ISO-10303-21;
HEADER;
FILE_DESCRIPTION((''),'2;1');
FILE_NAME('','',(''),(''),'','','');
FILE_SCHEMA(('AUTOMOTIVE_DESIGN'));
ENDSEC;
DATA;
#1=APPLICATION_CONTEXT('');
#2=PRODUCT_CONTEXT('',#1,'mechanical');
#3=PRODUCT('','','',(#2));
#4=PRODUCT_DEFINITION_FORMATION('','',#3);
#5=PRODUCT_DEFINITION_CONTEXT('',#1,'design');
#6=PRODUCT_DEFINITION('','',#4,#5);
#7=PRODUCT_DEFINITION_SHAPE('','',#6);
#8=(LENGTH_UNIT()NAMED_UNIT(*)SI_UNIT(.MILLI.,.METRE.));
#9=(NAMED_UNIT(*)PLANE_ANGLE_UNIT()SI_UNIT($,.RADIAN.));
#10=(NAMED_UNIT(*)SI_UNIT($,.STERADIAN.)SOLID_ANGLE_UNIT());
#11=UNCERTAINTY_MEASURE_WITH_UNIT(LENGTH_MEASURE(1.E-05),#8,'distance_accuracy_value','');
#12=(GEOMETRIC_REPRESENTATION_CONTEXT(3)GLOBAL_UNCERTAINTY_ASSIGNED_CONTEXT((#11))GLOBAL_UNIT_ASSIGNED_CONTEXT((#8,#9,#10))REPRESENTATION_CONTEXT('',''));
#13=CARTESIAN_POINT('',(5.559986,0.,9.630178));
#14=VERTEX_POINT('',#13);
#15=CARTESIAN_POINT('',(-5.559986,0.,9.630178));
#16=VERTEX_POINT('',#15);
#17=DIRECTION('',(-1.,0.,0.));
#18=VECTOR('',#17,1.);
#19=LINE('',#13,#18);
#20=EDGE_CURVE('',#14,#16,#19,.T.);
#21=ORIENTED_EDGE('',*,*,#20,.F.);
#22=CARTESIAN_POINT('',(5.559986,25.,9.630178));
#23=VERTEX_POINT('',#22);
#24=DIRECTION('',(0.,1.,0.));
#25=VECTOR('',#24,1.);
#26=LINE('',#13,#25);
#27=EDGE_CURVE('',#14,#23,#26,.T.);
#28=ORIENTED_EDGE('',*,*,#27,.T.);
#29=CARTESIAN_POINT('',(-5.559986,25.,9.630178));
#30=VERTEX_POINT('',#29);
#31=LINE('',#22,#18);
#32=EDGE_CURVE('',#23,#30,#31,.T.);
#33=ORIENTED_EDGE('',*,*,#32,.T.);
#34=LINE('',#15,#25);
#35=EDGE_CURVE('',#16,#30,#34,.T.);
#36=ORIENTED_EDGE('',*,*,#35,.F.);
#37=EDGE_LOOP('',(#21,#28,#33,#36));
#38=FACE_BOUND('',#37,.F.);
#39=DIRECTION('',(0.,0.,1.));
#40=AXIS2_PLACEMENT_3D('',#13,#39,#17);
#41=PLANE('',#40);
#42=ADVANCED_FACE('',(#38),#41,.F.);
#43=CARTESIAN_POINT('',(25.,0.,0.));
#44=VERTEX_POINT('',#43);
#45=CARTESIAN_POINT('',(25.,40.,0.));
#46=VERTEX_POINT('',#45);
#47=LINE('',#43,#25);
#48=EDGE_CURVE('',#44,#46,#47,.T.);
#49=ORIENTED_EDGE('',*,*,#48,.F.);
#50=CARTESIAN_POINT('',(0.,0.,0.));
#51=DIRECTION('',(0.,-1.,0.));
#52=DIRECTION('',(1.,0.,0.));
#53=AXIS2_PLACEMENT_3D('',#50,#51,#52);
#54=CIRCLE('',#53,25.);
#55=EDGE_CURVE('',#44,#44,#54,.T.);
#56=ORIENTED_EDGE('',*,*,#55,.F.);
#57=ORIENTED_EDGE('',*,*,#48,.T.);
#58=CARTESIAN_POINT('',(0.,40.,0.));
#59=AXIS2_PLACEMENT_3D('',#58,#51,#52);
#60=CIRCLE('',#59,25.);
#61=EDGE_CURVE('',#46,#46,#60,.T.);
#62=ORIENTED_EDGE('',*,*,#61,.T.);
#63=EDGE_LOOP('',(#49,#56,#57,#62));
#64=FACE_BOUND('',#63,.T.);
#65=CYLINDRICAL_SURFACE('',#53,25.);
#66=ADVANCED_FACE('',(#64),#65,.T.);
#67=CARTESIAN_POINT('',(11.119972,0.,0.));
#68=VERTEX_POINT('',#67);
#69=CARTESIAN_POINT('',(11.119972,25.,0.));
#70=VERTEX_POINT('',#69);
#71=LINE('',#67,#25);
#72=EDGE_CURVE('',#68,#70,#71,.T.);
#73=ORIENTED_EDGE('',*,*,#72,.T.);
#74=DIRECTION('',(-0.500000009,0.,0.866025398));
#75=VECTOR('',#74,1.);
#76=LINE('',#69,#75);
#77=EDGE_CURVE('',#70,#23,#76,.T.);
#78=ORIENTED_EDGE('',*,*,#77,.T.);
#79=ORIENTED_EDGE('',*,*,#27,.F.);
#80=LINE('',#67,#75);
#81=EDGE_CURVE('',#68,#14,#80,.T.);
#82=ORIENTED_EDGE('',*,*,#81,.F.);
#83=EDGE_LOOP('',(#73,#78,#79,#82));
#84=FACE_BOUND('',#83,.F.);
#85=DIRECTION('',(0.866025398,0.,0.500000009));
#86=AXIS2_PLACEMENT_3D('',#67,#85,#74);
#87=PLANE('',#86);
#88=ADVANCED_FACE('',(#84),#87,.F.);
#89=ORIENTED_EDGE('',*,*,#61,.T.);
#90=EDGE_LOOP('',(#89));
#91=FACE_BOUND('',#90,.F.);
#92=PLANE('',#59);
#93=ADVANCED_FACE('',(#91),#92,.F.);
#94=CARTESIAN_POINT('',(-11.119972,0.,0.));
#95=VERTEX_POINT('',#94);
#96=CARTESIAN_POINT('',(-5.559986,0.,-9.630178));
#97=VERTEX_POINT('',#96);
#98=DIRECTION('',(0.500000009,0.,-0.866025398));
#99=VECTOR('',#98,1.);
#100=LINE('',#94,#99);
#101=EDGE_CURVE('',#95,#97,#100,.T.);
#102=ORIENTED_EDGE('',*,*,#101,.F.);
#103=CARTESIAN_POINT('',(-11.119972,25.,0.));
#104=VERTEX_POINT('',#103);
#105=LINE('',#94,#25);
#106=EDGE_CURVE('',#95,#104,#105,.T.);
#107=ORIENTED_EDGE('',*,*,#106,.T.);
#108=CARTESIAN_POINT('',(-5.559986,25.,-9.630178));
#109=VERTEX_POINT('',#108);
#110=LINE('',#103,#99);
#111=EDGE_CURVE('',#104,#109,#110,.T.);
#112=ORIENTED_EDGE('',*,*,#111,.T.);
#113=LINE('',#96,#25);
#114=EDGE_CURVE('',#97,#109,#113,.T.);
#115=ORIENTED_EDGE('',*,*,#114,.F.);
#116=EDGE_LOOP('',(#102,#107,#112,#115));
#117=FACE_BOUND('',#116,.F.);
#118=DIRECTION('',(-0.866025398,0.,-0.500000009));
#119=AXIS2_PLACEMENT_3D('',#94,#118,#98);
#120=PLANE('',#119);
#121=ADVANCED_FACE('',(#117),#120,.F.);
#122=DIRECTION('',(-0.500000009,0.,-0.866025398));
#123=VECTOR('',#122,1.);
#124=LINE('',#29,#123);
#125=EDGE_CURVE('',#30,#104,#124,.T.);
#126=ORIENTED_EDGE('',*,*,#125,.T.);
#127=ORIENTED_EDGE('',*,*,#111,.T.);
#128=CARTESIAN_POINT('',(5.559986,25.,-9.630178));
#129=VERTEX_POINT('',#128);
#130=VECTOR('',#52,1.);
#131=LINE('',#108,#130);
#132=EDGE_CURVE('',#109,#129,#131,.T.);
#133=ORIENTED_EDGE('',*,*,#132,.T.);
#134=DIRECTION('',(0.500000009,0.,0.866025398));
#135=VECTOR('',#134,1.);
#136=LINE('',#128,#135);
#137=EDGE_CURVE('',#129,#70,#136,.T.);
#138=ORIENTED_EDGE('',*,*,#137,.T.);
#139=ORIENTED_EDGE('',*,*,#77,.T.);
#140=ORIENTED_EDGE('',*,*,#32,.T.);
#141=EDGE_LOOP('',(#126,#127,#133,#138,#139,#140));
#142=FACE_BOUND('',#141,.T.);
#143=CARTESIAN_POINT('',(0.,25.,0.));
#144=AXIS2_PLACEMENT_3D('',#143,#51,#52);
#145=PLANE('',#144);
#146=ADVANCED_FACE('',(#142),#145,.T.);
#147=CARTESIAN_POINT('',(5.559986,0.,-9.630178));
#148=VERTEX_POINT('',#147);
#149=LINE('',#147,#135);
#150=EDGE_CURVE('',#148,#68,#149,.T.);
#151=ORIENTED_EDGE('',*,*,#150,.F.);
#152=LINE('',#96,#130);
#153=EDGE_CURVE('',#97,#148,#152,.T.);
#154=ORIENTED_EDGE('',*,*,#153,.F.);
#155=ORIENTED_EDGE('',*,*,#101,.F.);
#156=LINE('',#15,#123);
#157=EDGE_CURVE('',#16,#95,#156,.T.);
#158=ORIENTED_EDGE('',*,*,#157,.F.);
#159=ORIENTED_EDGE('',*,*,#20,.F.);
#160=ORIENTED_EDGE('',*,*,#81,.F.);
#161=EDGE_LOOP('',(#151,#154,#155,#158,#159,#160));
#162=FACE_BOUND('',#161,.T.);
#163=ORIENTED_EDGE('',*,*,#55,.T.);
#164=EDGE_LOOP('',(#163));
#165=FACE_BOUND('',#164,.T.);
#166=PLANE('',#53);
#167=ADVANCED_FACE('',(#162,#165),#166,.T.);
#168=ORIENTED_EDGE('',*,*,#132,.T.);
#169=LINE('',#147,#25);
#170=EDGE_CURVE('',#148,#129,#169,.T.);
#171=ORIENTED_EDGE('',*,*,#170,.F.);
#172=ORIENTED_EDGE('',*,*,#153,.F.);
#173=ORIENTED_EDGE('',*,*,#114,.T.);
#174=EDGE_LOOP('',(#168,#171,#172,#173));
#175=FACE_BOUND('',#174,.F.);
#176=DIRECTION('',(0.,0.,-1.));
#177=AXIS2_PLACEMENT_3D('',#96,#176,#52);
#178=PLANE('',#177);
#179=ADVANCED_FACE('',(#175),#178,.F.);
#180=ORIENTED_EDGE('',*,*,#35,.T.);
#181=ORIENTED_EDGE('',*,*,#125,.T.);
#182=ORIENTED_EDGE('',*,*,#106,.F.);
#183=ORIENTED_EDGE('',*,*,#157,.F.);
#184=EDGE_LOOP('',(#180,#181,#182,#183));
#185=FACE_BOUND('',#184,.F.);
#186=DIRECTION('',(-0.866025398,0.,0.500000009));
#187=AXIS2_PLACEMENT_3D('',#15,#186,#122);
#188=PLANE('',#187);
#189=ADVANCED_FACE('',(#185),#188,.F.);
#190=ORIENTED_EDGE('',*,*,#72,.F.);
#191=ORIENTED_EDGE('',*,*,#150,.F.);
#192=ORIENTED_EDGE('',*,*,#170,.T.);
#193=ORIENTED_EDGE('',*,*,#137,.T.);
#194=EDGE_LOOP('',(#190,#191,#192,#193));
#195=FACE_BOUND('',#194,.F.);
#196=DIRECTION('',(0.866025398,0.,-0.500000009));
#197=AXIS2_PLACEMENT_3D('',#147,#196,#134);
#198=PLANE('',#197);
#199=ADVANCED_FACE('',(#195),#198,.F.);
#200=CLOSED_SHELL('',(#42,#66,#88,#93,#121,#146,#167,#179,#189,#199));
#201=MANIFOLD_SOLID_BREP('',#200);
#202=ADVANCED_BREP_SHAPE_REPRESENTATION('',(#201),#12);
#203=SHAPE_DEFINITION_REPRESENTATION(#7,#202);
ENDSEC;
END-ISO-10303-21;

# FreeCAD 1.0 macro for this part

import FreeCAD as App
import Part
import Sketcher
Q = App.Units.Quantity


def add_polygon(sketch, points):
    """Adds a closed chain of lines whose ends are joined by coincident constraints."""
    first, n = sketch.GeometryCount, len(points)
    for a, b in zip(points, points[1:] + points[:1]):
        sketch.addGeometry(Part.LineSegment(App.Vector(*a, 0), App.Vector(*b, 0)), False)
    for i in range(n):
        sketch.addConstraint(Sketcher.Constraint("Coincident", first + i, 2, first + (i + 1) % n, 1))

doc = App.newDocument("Part")
body = doc.addObject("PartDesign::Body", "Body")

# Sketch on XZ plane
sketch1 = body.newObject("Sketcher::SketchObject", "Sketch")
sketch1.AttachmentSupport = (doc.getObject("XZ_Plane"), [""])
sketch1.MapMode = "FlatFace"
sketch1.addGeometry(Part.Circle(App.Vector(0, 0, 0), App.Vector(0, 0, 1), 25), False)
sketch1.addConstraint(Sketcher.Constraint("Coincident", 0, 3, -1, 1))
sketch1.addConstraint(Sketcher.Constraint("Diameter", 0, 50.0))
pad1 = body.newObject("PartDesign::Pad", "Pad")
pad1.Profile = sketch1
pad1.Length = 40
pad1.Reversed = True

# Sketch on XZ plane
sketch2 = body.newObject("Sketcher::SketchObject", "Sketch001")
sketch2.AttachmentSupport = (doc.getObject("XZ_Plane"), [""])
sketch2.MapMode = "FlatFace"
add_polygon(sketch2, [(6, 10), (-6, 10), (-11, 0), (-6, -10), (6, -10), (11, 0)])  # lines 0-5
sketch2.addConstraint(Sketcher.Constraint("Horizontal", 0))
sketch2.addConstraint(Sketcher.Constraint("Horizontal", 3))
sketch2.addConstraint(Sketcher.Constraint("Symmetric", 0, 2, 3, 2, -1, 1))
sketch2.addConstraint(Sketcher.Constraint("Symmetric", 1, 2, 4, 2, -1, 1))
sketch2.addConstraint(Sketcher.Constraint("PointOnObject", 1, 2, -1))
sketch2.addConstraint(Sketcher.Constraint("Parallel", 2, 5))
sketch2.addConstraint(Sketcher.Constraint("Vertical", 0, 2, 2, 2))
sketch2.addConstraint(Sketcher.Constraint("Angle", 1, Q("-120.000001 deg")))
sketch2.addConstraint(Sketcher.Constraint("Distance", 1, 11.119972))
sketch2.addConstraint(Sketcher.Constraint("DistanceX", 0, 2, 0, 1, 11.119972))
pocket1 = body.newObject("PartDesign::Pocket", "Pocket")
pocket1.Profile = sketch2
pocket1.Length = 25

doc.recompute()
